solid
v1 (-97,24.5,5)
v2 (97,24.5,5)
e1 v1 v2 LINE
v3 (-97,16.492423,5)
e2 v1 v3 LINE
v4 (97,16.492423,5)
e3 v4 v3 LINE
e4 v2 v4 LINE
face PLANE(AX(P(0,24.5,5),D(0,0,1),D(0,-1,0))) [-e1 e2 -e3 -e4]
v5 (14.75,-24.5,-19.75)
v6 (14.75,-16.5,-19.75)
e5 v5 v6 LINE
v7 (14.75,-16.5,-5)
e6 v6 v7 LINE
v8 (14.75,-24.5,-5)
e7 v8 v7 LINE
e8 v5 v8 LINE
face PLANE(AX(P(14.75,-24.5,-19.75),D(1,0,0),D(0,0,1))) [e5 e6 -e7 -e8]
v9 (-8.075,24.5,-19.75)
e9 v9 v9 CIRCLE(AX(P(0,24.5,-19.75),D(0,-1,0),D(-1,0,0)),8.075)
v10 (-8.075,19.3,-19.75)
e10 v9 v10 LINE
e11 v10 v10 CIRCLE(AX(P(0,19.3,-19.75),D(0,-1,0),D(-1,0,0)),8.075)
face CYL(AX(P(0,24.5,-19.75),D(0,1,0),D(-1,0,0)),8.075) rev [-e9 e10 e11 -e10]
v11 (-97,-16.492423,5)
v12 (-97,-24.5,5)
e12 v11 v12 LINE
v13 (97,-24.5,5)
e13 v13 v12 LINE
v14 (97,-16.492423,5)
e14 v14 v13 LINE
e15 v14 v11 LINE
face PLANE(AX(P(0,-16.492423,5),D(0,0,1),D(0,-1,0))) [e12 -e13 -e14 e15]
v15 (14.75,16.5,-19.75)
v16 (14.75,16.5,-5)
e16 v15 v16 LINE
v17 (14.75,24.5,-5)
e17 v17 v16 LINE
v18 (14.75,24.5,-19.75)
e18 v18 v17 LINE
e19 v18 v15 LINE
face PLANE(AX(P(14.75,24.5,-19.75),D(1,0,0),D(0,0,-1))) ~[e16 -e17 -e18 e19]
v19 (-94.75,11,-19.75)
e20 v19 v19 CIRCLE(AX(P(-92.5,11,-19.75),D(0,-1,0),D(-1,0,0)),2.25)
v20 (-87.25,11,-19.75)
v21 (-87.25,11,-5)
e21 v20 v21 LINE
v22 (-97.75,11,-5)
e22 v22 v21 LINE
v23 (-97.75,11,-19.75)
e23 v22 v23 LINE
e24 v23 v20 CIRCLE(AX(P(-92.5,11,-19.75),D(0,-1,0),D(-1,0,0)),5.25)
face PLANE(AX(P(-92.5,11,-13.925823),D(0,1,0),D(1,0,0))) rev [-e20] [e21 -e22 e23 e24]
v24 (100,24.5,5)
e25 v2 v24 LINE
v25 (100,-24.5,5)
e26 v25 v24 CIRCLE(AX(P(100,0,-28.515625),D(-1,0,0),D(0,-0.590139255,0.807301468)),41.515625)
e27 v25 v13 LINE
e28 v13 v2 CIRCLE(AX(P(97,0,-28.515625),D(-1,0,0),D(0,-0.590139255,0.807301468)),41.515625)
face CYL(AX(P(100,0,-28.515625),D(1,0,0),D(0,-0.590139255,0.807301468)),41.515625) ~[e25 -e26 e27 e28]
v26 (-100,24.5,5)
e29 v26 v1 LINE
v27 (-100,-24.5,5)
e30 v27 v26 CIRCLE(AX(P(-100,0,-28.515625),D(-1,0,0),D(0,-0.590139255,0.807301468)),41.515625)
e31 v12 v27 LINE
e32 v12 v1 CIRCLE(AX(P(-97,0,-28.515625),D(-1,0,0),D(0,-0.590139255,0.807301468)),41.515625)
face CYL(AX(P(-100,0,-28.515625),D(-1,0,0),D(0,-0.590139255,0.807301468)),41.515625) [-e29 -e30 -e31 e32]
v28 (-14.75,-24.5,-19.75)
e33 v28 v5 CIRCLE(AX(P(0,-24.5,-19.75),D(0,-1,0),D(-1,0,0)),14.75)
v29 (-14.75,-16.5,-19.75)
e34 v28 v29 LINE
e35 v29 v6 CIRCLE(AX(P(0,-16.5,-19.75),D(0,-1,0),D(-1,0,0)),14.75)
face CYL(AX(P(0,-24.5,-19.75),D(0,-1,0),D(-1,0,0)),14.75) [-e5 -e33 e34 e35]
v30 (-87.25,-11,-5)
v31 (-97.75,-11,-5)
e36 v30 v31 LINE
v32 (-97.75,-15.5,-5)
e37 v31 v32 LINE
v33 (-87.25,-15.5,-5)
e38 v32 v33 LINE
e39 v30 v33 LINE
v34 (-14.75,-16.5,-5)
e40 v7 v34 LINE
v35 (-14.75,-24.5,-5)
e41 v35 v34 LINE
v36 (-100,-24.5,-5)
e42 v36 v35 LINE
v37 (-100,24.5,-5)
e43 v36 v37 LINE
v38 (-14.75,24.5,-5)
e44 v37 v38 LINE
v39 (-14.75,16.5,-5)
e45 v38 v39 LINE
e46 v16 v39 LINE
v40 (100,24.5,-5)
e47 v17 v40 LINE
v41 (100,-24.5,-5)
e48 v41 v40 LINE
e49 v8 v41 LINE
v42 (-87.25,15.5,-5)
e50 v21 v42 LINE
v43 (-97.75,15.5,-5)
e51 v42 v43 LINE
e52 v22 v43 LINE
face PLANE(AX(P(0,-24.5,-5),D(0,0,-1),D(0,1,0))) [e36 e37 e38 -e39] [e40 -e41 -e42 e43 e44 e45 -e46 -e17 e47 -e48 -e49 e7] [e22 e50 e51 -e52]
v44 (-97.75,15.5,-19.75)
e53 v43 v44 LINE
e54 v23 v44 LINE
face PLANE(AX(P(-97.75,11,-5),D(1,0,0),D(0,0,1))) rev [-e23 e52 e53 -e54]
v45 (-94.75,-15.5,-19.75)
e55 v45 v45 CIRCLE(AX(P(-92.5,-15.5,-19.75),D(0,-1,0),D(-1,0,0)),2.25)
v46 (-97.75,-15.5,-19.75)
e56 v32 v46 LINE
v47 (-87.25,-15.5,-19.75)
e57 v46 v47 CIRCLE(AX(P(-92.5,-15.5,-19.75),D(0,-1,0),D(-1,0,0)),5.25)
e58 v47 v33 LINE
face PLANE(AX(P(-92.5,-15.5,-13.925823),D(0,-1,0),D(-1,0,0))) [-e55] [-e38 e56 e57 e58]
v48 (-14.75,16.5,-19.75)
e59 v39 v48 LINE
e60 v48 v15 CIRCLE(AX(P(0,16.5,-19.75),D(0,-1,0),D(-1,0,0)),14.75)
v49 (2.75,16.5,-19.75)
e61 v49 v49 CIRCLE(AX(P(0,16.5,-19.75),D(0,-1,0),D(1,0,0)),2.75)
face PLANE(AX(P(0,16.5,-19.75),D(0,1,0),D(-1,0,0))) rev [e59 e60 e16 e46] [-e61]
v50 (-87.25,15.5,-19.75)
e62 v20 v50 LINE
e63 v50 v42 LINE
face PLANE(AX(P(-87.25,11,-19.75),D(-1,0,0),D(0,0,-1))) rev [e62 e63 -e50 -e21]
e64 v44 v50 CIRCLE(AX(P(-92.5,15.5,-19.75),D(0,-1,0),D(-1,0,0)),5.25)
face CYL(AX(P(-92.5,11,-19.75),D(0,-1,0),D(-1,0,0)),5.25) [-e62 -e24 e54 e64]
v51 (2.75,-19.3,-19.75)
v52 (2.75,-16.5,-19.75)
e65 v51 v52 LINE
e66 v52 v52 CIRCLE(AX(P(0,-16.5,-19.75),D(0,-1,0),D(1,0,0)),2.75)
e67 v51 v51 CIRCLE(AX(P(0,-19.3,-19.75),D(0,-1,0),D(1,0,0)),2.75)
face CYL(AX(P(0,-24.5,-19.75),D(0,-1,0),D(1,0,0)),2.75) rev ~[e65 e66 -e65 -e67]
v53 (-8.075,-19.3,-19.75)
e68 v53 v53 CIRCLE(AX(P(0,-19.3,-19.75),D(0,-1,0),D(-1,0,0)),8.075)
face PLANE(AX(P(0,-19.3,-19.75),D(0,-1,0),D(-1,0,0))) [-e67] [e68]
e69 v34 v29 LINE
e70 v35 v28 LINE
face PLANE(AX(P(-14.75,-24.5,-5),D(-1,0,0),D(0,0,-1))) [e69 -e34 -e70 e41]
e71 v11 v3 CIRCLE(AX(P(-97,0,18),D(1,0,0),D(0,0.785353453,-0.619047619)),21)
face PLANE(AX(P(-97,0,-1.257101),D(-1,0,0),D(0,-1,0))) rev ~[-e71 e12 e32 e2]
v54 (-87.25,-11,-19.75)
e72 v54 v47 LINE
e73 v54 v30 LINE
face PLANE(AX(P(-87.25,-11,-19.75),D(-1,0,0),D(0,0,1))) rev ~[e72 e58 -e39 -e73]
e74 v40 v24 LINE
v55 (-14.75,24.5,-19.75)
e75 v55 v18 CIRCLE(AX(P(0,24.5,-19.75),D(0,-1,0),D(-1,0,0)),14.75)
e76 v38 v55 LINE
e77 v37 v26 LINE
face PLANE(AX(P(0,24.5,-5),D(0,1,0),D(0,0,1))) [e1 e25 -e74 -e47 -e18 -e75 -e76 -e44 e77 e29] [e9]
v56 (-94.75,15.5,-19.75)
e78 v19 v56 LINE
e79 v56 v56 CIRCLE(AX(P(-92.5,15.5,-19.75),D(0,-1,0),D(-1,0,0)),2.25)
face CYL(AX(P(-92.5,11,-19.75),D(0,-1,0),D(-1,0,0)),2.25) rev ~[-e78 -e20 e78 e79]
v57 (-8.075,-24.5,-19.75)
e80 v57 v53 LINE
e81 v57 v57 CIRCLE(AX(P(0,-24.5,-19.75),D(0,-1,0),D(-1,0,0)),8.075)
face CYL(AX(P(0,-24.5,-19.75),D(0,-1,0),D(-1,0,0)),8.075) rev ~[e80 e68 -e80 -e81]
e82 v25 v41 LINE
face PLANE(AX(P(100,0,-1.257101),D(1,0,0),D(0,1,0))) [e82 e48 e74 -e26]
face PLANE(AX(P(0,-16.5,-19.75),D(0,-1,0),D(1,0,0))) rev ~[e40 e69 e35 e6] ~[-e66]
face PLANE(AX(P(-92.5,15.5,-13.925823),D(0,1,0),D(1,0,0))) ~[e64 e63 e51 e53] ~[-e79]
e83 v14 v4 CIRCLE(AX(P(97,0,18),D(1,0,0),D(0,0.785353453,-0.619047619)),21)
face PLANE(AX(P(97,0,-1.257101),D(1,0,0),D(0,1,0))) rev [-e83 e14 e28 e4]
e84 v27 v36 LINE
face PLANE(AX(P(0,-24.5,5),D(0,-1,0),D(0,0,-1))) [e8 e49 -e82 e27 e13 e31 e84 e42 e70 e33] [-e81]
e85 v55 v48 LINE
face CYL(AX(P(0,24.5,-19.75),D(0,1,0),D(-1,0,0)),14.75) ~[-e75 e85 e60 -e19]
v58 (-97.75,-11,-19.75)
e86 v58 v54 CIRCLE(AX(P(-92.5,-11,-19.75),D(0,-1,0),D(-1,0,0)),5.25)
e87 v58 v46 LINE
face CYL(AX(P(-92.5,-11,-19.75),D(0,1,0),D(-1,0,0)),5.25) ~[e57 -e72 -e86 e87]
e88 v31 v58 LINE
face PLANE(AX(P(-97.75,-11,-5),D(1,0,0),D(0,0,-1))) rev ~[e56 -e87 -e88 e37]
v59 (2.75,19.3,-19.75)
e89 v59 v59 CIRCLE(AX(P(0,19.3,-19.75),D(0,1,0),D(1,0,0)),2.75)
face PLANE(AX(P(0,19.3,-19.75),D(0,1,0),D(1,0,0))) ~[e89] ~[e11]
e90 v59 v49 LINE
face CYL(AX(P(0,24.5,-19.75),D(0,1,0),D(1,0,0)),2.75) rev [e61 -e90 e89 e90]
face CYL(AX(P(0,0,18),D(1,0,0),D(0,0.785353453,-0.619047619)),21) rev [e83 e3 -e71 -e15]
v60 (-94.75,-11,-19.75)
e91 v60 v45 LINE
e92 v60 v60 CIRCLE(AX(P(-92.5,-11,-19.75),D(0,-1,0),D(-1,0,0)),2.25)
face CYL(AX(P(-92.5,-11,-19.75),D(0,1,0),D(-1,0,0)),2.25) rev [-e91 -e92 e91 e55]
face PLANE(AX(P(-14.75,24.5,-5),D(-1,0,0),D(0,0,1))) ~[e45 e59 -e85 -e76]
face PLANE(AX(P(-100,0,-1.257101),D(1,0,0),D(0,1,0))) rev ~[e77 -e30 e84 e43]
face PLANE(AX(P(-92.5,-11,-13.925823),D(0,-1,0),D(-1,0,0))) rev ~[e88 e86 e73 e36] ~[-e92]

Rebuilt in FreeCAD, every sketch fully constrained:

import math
import FreeCAD as App
import Part
import Sketcher
from FreeCAD import Vector

doc = App.newDocument("Part")
params = doc.addObject("Spreadsheet::Sheet", "Params")
for row, (alias, value) in enumerate([
    ("sketch1_radius", "21 mm"),
    ("sketch1_width", "49 mm"),
    ("sketch1_height", "10 mm"),
    ("pad1_length", "200 mm"),
    ("sketch2_diameter", "5.5 mm"),
    ("sketch2_radius", "14.75 mm"),
    ("sketch2_height", "14.75 mm"),
    ("pad2_length", "8 mm"),
    ("sketch3_diameter", "16.15 mm"),
    ("pocket1_length", "5.2 mm"),
    ("sketch4_diameter", "4.5 mm"),
    ("sketch4_radius", "5.25 mm"),
    ("sketch4_height", "14.75 mm"),
    ("pad3_length", "4.5 mm"),
    ("sketch5_width", "49 mm"),
    ("sketch5_height", "10 mm"),
    ("pad4_length", "3 mm"),
], start=1):
    params.set(f"A{row}", alias)
    params.set(f"B{row}", "=" + value)
    params.setAlias(f"B{row}", alias)

body = doc.addObject("PartDesign::Body", "Body")

sketch1 = doc.addObject("Sketcher::SketchObject", "Sketch")
body.addObject(sketch1)
sketch1.AttachmentSupport = (doc.YZ_Plane, [""])
sketch1.MapMode = "FlatFace"
sketch1.addGeometry([
    Part.LineSegment(Vector(-24, 5, 0), Vector(-24, -5, 0)),
    Part.LineSegment(Vector(-24, -5, 0), Vector(24, -5, 0)),
    Part.LineSegment(Vector(24, -5, 0), Vector(24, 5, 0)),
    Part.LineSegment(Vector(24, 5, 0), Vector(16, 5, 0)),
    Part.ArcOfCircle(Part.Circle(Vector(0, 18, 0), Vector(0, 0, 1), 21), math.radians(-142), math.radians(-38)),
    Part.LineSegment(Vector(-16, 5, 0), Vector(-24, 5, 0)),
], False)
sketch1.addConstraint([
    Sketcher.Constraint("Coincident", 0, 2, 1, 1),
    Sketcher.Constraint("Coincident", 1, 2, 2, 1),
    Sketcher.Constraint("Coincident", 2, 2, 3, 1),
    Sketcher.Constraint("Coincident", 3, 2, 4, 2),
    Sketcher.Constraint("Coincident", 4, 1, 5, 1),
    Sketcher.Constraint("Coincident", 5, 2, 0, 1),
    Sketcher.Constraint("Vertical", 0),
    Sketcher.Constraint("Horizontal", 1),
    Sketcher.Constraint("Vertical", 2),
    Sketcher.Constraint("Horizontal", 3),
    Sketcher.Constraint("Horizontal", 5),
    Sketcher.Constraint("Symmetric", 0, 2, 2, 2, -1, 1),
    Sketcher.Constraint("Symmetric", 3, 2, 4, 1, -2),
    Sketcher.Constraint("Radius", 4, 21.0),
    Sketcher.Constraint("DistanceX", 1, 1, 1, 2, 49.0),
    Sketcher.Constraint("DistanceY", 0, 2, 0, 1, 10.0),
    Sketcher.Constraint("DistanceY", -1, 1, 4, 3, 18.0),
])
sketch1.setExpression("Constraints[13]", "Params.sketch1_radius")
sketch1.setExpression("Constraints[14]", "Params.sketch1_width")
sketch1.setExpression("Constraints[15]", "Params.sketch1_height")
pad1 = doc.addObject("PartDesign::Pad", "Pad")
body.addObject(pad1)
pad1.Profile = sketch1
pad1.setExpression("Length", "Params.pad1_length")
pad1.Midplane = True

sketch2 = doc.addObject("Sketcher::SketchObject", "Sketch001")
body.addObject(sketch2)
sketch2.AttachmentSupport = (doc.XZ_Plane, [""])
sketch2.MapMode = "FlatFace"
sketch2.AttachmentOffset = App.Placement(Vector(0, 0, 24.5), App.Rotation())
sketch2.addGeometry([
    Part.LineSegment(Vector(-14.8, -5, 0), Vector(-14.8, -19.8, 0)),
    Part.ArcOfCircle(Part.Circle(Vector(0, -19.8, 0), Vector(0, 0, 1), 14.8), math.radians(180), math.radians(360)),
    Part.LineSegment(Vector(14.8, -19.8, 0), Vector(14.8, -5, 0)),
    Part.LineSegment(Vector(14.8, -5, 0), Vector(-14.8, -5, 0)),
    Part.Circle(Vector(0, -19.8, 0), Vector(0, 0, 1), 2.8),
], False)
sketch2.addConstraint([
    Sketcher.Constraint("Tangent", 0, 2, 1, 1),
    Sketcher.Constraint("Tangent", 1, 2, 2, 1),
    Sketcher.Constraint("Coincident", 2, 2, 3, 1),
    Sketcher.Constraint("Coincident", 3, 2, 0, 1),
    Sketcher.Constraint("Vertical", 0),
    Sketcher.Constraint("Vertical", 2),
    Sketcher.Constraint("Horizontal", 3),
    Sketcher.Constraint("Coincident", 4, 3, 1, 3),
    Sketcher.Constraint("PointOnObject", 1, 3, -2),
    Sketcher.Constraint("Diameter", 4, 5.5),
    Sketcher.Constraint("Radius", 1, 14.75),
    Sketcher.Constraint("DistanceY", 2, 2, -1, 1, 5.0),
    Sketcher.Constraint("DistanceY", 0, 2, 0, 1, 14.75),
])
sketch2.setExpression("Constraints[9]", "Params.sketch2_diameter")
sketch2.setExpression("Constraints[10]", "Params.sketch2_radius")
sketch2.setExpression("Constraints[12]", "Params.sketch2_height")
pad2 = doc.addObject("PartDesign::Pad", "Pad001")
body.addObject(pad2)
pad2.Profile = sketch2
pad2.setExpression("Length", "Params.pad2_length")
pad2.Reversed = True

sketch3 = doc.addObject("Sketcher::SketchObject", "Sketch002")
body.addObject(sketch3)
sketch3.AttachmentSupport = (doc.XZ_Plane, [""])
sketch3.MapMode = "FlatFace"
sketch3.AttachmentOffset = App.Placement(Vector(0, 0, 24.5), App.Rotation())
sketch3.addGeometry(Part.Circle(Vector(0, -20, 0), Vector(0, 0, 1), 8), False)
sketch3.addConstraint([
    Sketcher.Constraint("PointOnObject", 0, 3, -2),
    Sketcher.Constraint("Diameter", 0, 16.15),
    Sketcher.Constraint("DistanceY", 0, 3, -1, 1, 19.75),
])
sketch3.setExpression("Constraints[1]", "Params.sketch3_diameter")
pocket1 = doc.addObject("PartDesign::Pocket", "Pocket")
body.addObject(pocket1)
pocket1.Profile = sketch3
pocket1.setExpression("Length", "Params.pocket1_length")
doc.recompute()

mirrored = doc.addObject("PartDesign::Mirrored", "Mirrored")
body.addObject(mirrored)
mirrored.Originals = [pad2, pocket1]
mirrored.MirrorPlane = (doc.XZ_Plane, [""])
body.Tip = mirrored

sketch4 = doc.addObject("Sketcher::SketchObject", "Sketch003")
body.addObject(sketch4)
sketch4.AttachmentSupport = (doc.XZ_Plane, [""])
sketch4.MapMode = "FlatFace"
sketch4.AttachmentOffset = App.Placement(Vector(0, 0, 11), App.Rotation())
sketch4.addGeometry([
    Part.LineSegment(Vector(-87.2, -19.8, 0), Vector(-87.2, -5, 0)),
    Part.LineSegment(Vector(-87.2, -5, 0), Vector(-97.8, -5, 0)),
    Part.LineSegment(Vector(-97.8, -5, 0), Vector(-97.8, -19.8, 0)),
    Part.ArcOfCircle(Part.Circle(Vector(-92.5, -19.8, 0), Vector(0, 0, 1), 5.2), math.radians(180), math.radians(360)),
    Part.Circle(Vector(-92.5, -19.8, 0), Vector(0, 0, 1), 2.2),
], False)
sketch4.addConstraint([
    Sketcher.Constraint("Coincident", 0, 2, 1, 1),
    Sketcher.Constraint("Coincident", 1, 2, 2, 1),
    Sketcher.Constraint("Tangent", 2, 2, 3, 1),
    Sketcher.Constraint("Tangent", 3, 2, 0, 1),
    Sketcher.Constraint("Vertical", 0),
    Sketcher.Constraint("Horizontal", 1),
    Sketcher.Constraint("Vertical", 2),
    Sketcher.Constraint("Coincident", 4, 3, 3, 3),
    Sketcher.Constraint("Diameter", 4, 4.5),
    Sketcher.Constraint("Radius", 3, 5.25),
    Sketcher.Constraint("DistanceY", 0, 2, -1, 1, 5.0),
    Sketcher.Constraint("DistanceY", 0, 1, 0, 2, 14.75),
    Sketcher.Constraint("DistanceX", 3, 3, -1, 1, 92.5),
])
sketch4.setExpression("Constraints[8]", "Params.sketch4_diameter")
sketch4.setExpression("Constraints[9]", "Params.sketch4_radius")
sketch4.setExpression("Constraints[11]", "Params.sketch4_height")
pad3 = doc.addObject("PartDesign::Pad", "Pad002")
body.addObject(pad3)
pad3.Profile = sketch4
pad3.setExpression("Length", "Params.pad3_length")
doc.recompute()

mirrored2 = doc.addObject("PartDesign::Mirrored", "Mirrored001")
body.addObject(mirrored2)
mirrored2.Originals = [pad3]
mirrored2.MirrorPlane = (doc.XZ_Plane, [""])
body.Tip = mirrored2

sketch5 = doc.addObject("Sketcher::SketchObject", "Sketch004")
body.addObject(sketch5)
sketch5.AttachmentSupport = (doc.YZ_Plane, [""])
sketch5.MapMode = "FlatFace"
sketch5.AttachmentOffset = App.Placement(Vector(0, 0, -100), App.Rotation())
sketch5.addGeometry([
    Part.LineSegment(Vector(24, 5, 0), Vector(24, -5, 0)),
    Part.LineSegment(Vector(24, -5, 0), Vector(-24, -5, 0)),
    Part.LineSegment(Vector(-24, -5, 0), Vector(-24, 5, 0)),
    Part.ArcOfCircle(Part.Circle(Vector(0, -29, 0), Vector(0, 0, 1), 42), math.radians(54), math.radians(126)),
], False)
sketch5.addConstraint([
    Sketcher.Constraint("Coincident", 0, 2, 1, 1),
    Sketcher.Constraint("Coincident", 1, 2, 2, 1),
    Sketcher.Constraint("Coincident", 2, 2, 3, 2),
    Sketcher.Constraint("Coincident", 3, 1, 0, 1),
    Sketcher.Constraint("Vertical", 0),
    Sketcher.Constraint("Horizontal", 1),
    Sketcher.Constraint("Vertical", 2),
    Sketcher.Constraint("Symmetric", 0, 2, 2, 2, -1, 1),
    Sketcher.Constraint("PointOnObject", 3, 3, -2),
    Sketcher.Constraint("DistanceX", 1, 2, 1, 1, 49.0),
    Sketcher.Constraint("DistanceY", 0, 2, 0, 1, 10.0),
    Sketcher.Constraint("Radius", 3, 41.515625),
])
sketch5.setExpression("Constraints[9]", "Params.sketch5_width")
sketch5.setExpression("Constraints[10]", "Params.sketch5_height")
pad4 = doc.addObject("PartDesign::Pad", "Pad003")
body.addObject(pad4)
pad4.Profile = sketch5
pad4.setExpression("Length", "Params.pad4_length")
doc.recompute()

mirrored3 = doc.addObject("PartDesign::Mirrored", "Mirrored002")
body.addObject(mirrored3)
mirrored3.Originals = [pad4]
mirrored3.MirrorPlane = (doc.YZ_Plane, [""])
body.Tip = mirrored3

doc.recompute()
